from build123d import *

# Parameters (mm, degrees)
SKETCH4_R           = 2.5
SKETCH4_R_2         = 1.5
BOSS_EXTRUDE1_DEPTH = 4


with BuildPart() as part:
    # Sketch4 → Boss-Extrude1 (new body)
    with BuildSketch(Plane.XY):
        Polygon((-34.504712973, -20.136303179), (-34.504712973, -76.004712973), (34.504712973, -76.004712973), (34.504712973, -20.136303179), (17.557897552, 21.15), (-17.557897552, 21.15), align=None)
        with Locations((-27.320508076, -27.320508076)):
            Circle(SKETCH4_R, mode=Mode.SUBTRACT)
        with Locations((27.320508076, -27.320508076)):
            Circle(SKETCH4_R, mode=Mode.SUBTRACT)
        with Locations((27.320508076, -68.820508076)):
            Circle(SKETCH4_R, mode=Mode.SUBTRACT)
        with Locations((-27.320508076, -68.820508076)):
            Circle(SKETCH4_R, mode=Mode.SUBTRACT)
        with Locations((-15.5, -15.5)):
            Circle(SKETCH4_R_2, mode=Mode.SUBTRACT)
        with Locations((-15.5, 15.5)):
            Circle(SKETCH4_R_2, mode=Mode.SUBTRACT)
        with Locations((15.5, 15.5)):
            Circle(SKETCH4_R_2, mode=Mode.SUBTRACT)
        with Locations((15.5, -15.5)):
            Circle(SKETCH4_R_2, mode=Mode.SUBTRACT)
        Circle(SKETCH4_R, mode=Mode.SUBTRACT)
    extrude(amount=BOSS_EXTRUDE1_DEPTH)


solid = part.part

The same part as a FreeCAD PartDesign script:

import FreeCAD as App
import Part
import Sketcher
Q = App.Units.Quantity

doc = App.newDocument("Part")
params = doc.addObject("Spreadsheet::Sheet", "Params")
for row, (alias, value) in enumerate([
    ("sketch1_diameter", "5 mm"),
    ("sketch1_diameter2", "3 mm"),
    ("pad1_length", "4 mm"),
], start=1):
    params.set(f"A{row}", alias)
    params.set(f"B{row}", "=" + value)
    params.setAlias(f"B{row}", alias)

body = doc.addObject("PartDesign::Body", "Body")

# Sketch on XY plane
sketch1 = body.newObject("Sketcher::SketchObject", "Sketch")
sketch1.AttachmentSupport = (doc.getObject("XY_Plane"), [""])
sketch1.MapMode = "FlatFace"
sketch1.addGeometry(Part.LineSegment(App.Vector(-34.5, -20.1, 0), App.Vector(-34.5, -76, 0)), False)
sketch1.addGeometry(Part.LineSegment(App.Vector(-34.5, -76, 0), App.Vector(34.5, -76, 0)), False)
sketch1.addGeometry(Part.LineSegment(App.Vector(34.5, -76, 0), App.Vector(34.5, -20.1, 0)), False)
sketch1.addGeometry(Part.LineSegment(App.Vector(34.5, -20.1, 0), App.Vector(17.6, 21.1, 0)), False)
sketch1.addGeometry(Part.LineSegment(App.Vector(17.6, 21.1, 0), App.Vector(-17.6, 21.1, 0)), False)
sketch1.addGeometry(Part.LineSegment(App.Vector(-17.6, 21.1, 0), App.Vector(-34.5, -20.1, 0)), False)
sketch1.addGeometry(Part.Circle(App.Vector(-27.3, -68.8, 0), App.Vector(0, 0, 1), 2.5), False)
sketch1.addGeometry(Part.Circle(App.Vector(-27.3, -27.3, 0), App.Vector(0, 0, 1), 2.5), False)
sketch1.addGeometry(Part.Circle(App.Vector(27.3, -68.8, 0), App.Vector(0, 0, 1), 2.5), False)
sketch1.addGeometry(Part.Circle(App.Vector(27.3, -27.3, 0), App.Vector(0, 0, 1), 2.5), False)
sketch1.addGeometry(Part.Circle(App.Vector(-15.5, -15.5, 0), App.Vector(0, 0, 1), 1.5), False)
sketch1.addGeometry(Part.Circle(App.Vector(-15.5, 15.5, 0), App.Vector(0, 0, 1), 1.5), False)
sketch1.addGeometry(Part.Circle(App.Vector(15.5, -15.5, 0), App.Vector(0, 0, 1), 1.5), False)
sketch1.addGeometry(Part.Circle(App.Vector(0, 0, 0), App.Vector(0, 0, 1), 2.5), False)
sketch1.addGeometry(Part.Circle(App.Vector(15.5, 15.5, 0), App.Vector(0, 0, 1), 1.5), False)
sketch1.addConstraint(Sketcher.Constraint("Coincident", 0, 2, 1, 1))
sketch1.addConstraint(Sketcher.Constraint("Coincident", 1, 2, 2, 1))
sketch1.addConstraint(Sketcher.Constraint("Coincident", 2, 2, 3, 1))
sketch1.addConstraint(Sketcher.Constraint("Coincident", 3, 2, 4, 1))
sketch1.addConstraint(Sketcher.Constraint("Coincident", 4, 2, 5, 1))
sketch1.addConstraint(Sketcher.Constraint("Coincident", 5, 2, 0, 1))
sketch1.addConstraint(Sketcher.Constraint("Vertical", 0))
sketch1.addConstraint(Sketcher.Constraint("Horizontal", 1))
sketch1.addConstraint(Sketcher.Constraint("Vertical", 2))
sketch1.addConstraint(Sketcher.Constraint("Horizontal", 4))
sketch1.addConstraint(Sketcher.Constraint("Coincident", 13, 3, -1, 1))
sketch1.addConstraint(Sketcher.Constraint("Equal", 6, 7))
sketch1.addConstraint(Sketcher.Constraint("Equal", 7, 8))
sketch1.addConstraint(Sketcher.Constraint("Equal", 8, 9))
sketch1.addConstraint(Sketcher.Constraint("Equal", 10, 11))
sketch1.addConstraint(Sketcher.Constraint("Equal", 11, 12))
sketch1.addConstraint(Sketcher.Constraint("Equal", 9, 13))
sketch1.addConstraint(Sketcher.Constraint("Equal", 12, 14))
sketch1.addConstraint(Sketcher.Constraint("Symmetric", 11, 3, 12, 3, -1, 1))
sketch1.addConstraint(Sketcher.Constraint("Symmetric", 10, 3, 14, 3, -1, 1))
sketch1.addConstraint(Sketcher.Constraint("Symmetric", 6, 3, 8, 3, -2))
sketch1.addConstraint(Sketcher.Constraint("Symmetric", 7, 3, 9, 3, -2))
sketch1.addConstraint(Sketcher.Constraint("Symmetric", 10, 3, 12, 3, -2))
sketch1.addConstraint(Sketcher.Constraint("Symmetric", 2, 2, 5, 2, -2))
sketch1.addConstraint(Sketcher.Constraint("Vertical", 6, 3, 7, 3))
sketch1.addConstraint(Sketcher.Constraint("Equal", 3, 5))
sketch1.addConstraint(Sketcher.Constraint("Diameter", 6, Q("5 mm")))
sketch1.addConstraint(Sketcher.Constraint("Diameter", 10, Q("3 mm")))
sketch1.addConstraint(Sketcher.Constraint("DistanceY", 10, 3, 11, 3, Q("31 mm")))
sketch1.addConstraint(Sketcher.Constraint("DistanceX", 10, 3, 12, 3, Q("31 mm")))
sketch1.addConstraint(Sketcher.Constraint("DistanceY", 6, 3, 7, 3, Q("41.5 mm")))
sketch1.addConstraint(Sketcher.Constraint("DistanceY", -1, 1, 3, 2, Q("21.15 mm")))
sketch1.addConstraint(Sketcher.Constraint("DistanceY", 0, 2, 0, 1, Q("55.86841 mm")))
sketch1.addConstraint(Sketcher.Constraint("DistanceX", 1, 1, 1, 2, Q("69.009426 mm")))
sketch1.addConstraint(Sketcher.Constraint("DistanceX", 4, 2, 4, 1, Q("35.115795 mm")))
sketch1.addConstraint(Sketcher.Constraint("DistanceX", 6, 3, -1, 1, Q("27.320508 mm")))
sketch1.addConstraint(Sketcher.Constraint("DistanceY", 6, 3, -1, 1, Q("68.820508 mm")))
sketch1.addConstraint(Sketcher.Constraint("Distance", 3, Q("44.629064 mm")))
sketch1.setExpression("Constraints[26]", "Params.sketch1_diameter")
sketch1.setExpression("Constraints[27]", "Params.sketch1_diameter2")
pad1 = body.newObject("PartDesign::Pad", "Pad")
pad1.Profile = sketch1
pad1.setExpression("Length", "Params.pad1_length")

doc.recompute()
